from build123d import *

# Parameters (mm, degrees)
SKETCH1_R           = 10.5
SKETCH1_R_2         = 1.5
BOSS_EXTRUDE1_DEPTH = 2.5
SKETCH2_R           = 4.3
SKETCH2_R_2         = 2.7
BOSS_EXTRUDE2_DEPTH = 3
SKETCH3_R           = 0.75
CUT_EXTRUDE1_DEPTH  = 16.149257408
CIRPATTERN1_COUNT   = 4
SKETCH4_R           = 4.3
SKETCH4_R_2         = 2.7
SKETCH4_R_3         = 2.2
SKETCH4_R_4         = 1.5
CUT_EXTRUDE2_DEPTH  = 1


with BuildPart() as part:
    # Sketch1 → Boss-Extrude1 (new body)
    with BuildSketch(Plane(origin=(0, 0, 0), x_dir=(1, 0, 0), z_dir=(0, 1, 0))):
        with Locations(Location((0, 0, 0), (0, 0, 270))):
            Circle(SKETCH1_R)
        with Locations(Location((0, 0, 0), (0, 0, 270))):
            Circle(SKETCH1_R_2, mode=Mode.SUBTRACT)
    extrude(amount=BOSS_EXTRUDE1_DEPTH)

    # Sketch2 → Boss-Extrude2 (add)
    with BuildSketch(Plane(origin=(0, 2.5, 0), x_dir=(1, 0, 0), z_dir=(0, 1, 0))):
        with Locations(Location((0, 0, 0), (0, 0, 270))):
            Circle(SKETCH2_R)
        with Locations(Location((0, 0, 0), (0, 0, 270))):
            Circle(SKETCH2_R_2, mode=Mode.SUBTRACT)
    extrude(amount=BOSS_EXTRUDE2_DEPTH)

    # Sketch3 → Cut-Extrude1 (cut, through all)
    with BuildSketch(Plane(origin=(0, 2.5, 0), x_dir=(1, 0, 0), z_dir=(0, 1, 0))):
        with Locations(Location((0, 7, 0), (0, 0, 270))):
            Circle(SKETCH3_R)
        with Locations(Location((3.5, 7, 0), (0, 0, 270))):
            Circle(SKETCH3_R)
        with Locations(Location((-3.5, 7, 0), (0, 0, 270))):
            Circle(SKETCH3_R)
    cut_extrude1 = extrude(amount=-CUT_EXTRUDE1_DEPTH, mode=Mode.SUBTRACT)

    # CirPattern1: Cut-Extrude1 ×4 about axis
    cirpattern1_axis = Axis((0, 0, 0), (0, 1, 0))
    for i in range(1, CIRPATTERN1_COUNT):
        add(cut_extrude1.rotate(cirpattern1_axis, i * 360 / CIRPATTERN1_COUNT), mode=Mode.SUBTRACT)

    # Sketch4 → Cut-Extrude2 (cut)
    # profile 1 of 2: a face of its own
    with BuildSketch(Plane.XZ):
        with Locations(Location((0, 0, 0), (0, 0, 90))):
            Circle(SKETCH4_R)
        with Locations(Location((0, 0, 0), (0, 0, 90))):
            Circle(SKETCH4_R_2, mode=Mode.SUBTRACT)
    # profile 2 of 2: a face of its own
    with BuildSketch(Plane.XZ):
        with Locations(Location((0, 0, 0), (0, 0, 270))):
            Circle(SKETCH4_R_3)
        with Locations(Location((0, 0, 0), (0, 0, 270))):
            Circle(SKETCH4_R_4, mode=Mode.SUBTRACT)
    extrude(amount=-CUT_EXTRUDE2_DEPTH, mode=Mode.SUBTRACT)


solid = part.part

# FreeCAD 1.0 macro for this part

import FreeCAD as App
import Part
import Sketcher
from FreeCAD import Vector

doc = App.newDocument("Part")
body = doc.addObject("PartDesign::Body", "Body")

sketch1 = body.newObject("Sketcher::SketchObject", "Sketch")
sketch1.AttachmentSupport = (doc.getObject("XZ_Plane"), [""])
sketch1.MapMode = "FlatFace"
sketch1.addGeometry([
    Part.Circle(Vector(0, 0, 0), Vector(0, 0, 1), 10.5),
    Part.Circle(Vector(0, 0, 0), Vector(0, 0, 1), 1.5),
], False)
sketch1.addConstraint([
    Sketcher.Constraint("Coincident", 0, 3, -1, 1),
    Sketcher.Constraint("Coincident", 1, 3, -1, 1),
    Sketcher.Constraint("Diameter", 0, 21.0),
    Sketcher.Constraint("Diameter", 1, 3.0),
])
pad1 = body.newObject("PartDesign::Pad", "Pad")
pad1.Profile = sketch1
pad1.Length = 2.5
pad1.Reversed = True

sketch2 = body.newObject("Sketcher::SketchObject", "Sketch001")
sketch2.AttachmentSupport = (doc.getObject("XZ_Plane"), [""])
sketch2.MapMode = "FlatFace"
sketch2.AttachmentOffset = App.Placement(Vector(0, 0, -2.5), App.Rotation())
sketch2.addGeometry([
    Part.Circle(Vector(0, 0, 0), Vector(0, 0, 1), 4.3),
    Part.Circle(Vector(0, 0, 0), Vector(0, 0, 1), 2.7),
], False)
sketch2.addConstraint([
    Sketcher.Constraint("Coincident", 0, 3, -1, 1),
    Sketcher.Constraint("Coincident", 1, 3, -1, 1),
    Sketcher.Constraint("Diameter", 0, 8.6),
    Sketcher.Constraint("Diameter", 1, 5.4),
])
pad2 = body.newObject("PartDesign::Pad", "Pad001")
pad2.Profile = sketch2
pad2.Length = 3
pad2.Reversed = True

sketch3 = body.newObject("Sketcher::SketchObject", "Sketch002")
sketch3.AttachmentSupport = (doc.getObject("XZ_Plane"), [""])
sketch3.MapMode = "FlatFace"
sketch3.AttachmentOffset = App.Placement(Vector(0, 0, -2.5), App.Rotation())
sketch3.addGeometry([
    Part.Circle(Vector(0, -7, 0), Vector(0, 0, 1), 0.75),
    Part.Circle(Vector(3.5, -7, 0), Vector(0, 0, 1), 0.75),
    Part.Circle(Vector(-3.5, -7, 0), Vector(0, 0, 1), 0.75),
], False)
sketch3.addConstraint([
    Sketcher.Constraint("Equal", 0, 1),
    Sketcher.Constraint("Equal", 1, 2),
    Sketcher.Constraint("Symmetric", 1, 3, 2, 3, -2),
    Sketcher.Constraint("PointOnObject", 0, 3, -2),
    Sketcher.Constraint("Horizontal", 0, 3, 1, 3),
    Sketcher.Constraint("Diameter", 0, 1.5),
    Sketcher.Constraint("DistanceY", 0, 3, -1, 1, 7.0),
    Sketcher.Constraint("DistanceX", 2, 3, 1, 3, 7.0),
])
pocket1 = body.newObject("PartDesign::Pocket", "Pocket")
pocket1.Profile = sketch3
pocket1.Type = "ThroughAll"
pocket1.Reversed = True
doc.recompute()

polarpattern = body.newObject("PartDesign::PolarPattern", "PolarPattern")
polarpattern.Originals = [pocket1]
polarpattern.Axis = (doc.getObject("Y_Axis"), [""])
polarpattern.Angle = 360
polarpattern.Occurrences = 4
body.Tip = polarpattern

sketch4 = body.newObject("Sketcher::SketchObject", "Sketch003")
sketch4.AttachmentSupport = (doc.getObject("XZ_Plane"), [""])
sketch4.MapMode = "FlatFace"
sketch4.addGeometry([
    Part.Circle(Vector(0, 0, 0), Vector(0, 0, 1), 4.3),
    Part.Circle(Vector(0, 0, 0), Vector(0, 0, 1), 2.7),
    Part.Circle(Vector(0, 0, 0), Vector(0, 0, 1), 2.2),
    Part.Circle(Vector(0, 0, 0), Vector(0, 0, 1), 1.5),
], False)
sketch4.addConstraint([
    Sketcher.Constraint("Coincident", 0, 3, -1, 1),
    Sketcher.Constraint("Coincident", 1, 3, -1, 1),
    Sketcher.Constraint("Coincident", 2, 3, -1, 1),
    Sketcher.Constraint("Coincident", 3, 3, -1, 1),
    Sketcher.Constraint("Diameter", 3, 3.0),
    Sketcher.Constraint("Diameter", 0, 8.6),
    Sketcher.Constraint("Diameter", 1, 5.4),
    Sketcher.Constraint("Diameter", 2, 4.4),
])
pocket2 = body.newObject("PartDesign::Pocket", "Pocket001")
pocket2.Profile = sketch4
pocket2.Length = 1

doc.recompute()
